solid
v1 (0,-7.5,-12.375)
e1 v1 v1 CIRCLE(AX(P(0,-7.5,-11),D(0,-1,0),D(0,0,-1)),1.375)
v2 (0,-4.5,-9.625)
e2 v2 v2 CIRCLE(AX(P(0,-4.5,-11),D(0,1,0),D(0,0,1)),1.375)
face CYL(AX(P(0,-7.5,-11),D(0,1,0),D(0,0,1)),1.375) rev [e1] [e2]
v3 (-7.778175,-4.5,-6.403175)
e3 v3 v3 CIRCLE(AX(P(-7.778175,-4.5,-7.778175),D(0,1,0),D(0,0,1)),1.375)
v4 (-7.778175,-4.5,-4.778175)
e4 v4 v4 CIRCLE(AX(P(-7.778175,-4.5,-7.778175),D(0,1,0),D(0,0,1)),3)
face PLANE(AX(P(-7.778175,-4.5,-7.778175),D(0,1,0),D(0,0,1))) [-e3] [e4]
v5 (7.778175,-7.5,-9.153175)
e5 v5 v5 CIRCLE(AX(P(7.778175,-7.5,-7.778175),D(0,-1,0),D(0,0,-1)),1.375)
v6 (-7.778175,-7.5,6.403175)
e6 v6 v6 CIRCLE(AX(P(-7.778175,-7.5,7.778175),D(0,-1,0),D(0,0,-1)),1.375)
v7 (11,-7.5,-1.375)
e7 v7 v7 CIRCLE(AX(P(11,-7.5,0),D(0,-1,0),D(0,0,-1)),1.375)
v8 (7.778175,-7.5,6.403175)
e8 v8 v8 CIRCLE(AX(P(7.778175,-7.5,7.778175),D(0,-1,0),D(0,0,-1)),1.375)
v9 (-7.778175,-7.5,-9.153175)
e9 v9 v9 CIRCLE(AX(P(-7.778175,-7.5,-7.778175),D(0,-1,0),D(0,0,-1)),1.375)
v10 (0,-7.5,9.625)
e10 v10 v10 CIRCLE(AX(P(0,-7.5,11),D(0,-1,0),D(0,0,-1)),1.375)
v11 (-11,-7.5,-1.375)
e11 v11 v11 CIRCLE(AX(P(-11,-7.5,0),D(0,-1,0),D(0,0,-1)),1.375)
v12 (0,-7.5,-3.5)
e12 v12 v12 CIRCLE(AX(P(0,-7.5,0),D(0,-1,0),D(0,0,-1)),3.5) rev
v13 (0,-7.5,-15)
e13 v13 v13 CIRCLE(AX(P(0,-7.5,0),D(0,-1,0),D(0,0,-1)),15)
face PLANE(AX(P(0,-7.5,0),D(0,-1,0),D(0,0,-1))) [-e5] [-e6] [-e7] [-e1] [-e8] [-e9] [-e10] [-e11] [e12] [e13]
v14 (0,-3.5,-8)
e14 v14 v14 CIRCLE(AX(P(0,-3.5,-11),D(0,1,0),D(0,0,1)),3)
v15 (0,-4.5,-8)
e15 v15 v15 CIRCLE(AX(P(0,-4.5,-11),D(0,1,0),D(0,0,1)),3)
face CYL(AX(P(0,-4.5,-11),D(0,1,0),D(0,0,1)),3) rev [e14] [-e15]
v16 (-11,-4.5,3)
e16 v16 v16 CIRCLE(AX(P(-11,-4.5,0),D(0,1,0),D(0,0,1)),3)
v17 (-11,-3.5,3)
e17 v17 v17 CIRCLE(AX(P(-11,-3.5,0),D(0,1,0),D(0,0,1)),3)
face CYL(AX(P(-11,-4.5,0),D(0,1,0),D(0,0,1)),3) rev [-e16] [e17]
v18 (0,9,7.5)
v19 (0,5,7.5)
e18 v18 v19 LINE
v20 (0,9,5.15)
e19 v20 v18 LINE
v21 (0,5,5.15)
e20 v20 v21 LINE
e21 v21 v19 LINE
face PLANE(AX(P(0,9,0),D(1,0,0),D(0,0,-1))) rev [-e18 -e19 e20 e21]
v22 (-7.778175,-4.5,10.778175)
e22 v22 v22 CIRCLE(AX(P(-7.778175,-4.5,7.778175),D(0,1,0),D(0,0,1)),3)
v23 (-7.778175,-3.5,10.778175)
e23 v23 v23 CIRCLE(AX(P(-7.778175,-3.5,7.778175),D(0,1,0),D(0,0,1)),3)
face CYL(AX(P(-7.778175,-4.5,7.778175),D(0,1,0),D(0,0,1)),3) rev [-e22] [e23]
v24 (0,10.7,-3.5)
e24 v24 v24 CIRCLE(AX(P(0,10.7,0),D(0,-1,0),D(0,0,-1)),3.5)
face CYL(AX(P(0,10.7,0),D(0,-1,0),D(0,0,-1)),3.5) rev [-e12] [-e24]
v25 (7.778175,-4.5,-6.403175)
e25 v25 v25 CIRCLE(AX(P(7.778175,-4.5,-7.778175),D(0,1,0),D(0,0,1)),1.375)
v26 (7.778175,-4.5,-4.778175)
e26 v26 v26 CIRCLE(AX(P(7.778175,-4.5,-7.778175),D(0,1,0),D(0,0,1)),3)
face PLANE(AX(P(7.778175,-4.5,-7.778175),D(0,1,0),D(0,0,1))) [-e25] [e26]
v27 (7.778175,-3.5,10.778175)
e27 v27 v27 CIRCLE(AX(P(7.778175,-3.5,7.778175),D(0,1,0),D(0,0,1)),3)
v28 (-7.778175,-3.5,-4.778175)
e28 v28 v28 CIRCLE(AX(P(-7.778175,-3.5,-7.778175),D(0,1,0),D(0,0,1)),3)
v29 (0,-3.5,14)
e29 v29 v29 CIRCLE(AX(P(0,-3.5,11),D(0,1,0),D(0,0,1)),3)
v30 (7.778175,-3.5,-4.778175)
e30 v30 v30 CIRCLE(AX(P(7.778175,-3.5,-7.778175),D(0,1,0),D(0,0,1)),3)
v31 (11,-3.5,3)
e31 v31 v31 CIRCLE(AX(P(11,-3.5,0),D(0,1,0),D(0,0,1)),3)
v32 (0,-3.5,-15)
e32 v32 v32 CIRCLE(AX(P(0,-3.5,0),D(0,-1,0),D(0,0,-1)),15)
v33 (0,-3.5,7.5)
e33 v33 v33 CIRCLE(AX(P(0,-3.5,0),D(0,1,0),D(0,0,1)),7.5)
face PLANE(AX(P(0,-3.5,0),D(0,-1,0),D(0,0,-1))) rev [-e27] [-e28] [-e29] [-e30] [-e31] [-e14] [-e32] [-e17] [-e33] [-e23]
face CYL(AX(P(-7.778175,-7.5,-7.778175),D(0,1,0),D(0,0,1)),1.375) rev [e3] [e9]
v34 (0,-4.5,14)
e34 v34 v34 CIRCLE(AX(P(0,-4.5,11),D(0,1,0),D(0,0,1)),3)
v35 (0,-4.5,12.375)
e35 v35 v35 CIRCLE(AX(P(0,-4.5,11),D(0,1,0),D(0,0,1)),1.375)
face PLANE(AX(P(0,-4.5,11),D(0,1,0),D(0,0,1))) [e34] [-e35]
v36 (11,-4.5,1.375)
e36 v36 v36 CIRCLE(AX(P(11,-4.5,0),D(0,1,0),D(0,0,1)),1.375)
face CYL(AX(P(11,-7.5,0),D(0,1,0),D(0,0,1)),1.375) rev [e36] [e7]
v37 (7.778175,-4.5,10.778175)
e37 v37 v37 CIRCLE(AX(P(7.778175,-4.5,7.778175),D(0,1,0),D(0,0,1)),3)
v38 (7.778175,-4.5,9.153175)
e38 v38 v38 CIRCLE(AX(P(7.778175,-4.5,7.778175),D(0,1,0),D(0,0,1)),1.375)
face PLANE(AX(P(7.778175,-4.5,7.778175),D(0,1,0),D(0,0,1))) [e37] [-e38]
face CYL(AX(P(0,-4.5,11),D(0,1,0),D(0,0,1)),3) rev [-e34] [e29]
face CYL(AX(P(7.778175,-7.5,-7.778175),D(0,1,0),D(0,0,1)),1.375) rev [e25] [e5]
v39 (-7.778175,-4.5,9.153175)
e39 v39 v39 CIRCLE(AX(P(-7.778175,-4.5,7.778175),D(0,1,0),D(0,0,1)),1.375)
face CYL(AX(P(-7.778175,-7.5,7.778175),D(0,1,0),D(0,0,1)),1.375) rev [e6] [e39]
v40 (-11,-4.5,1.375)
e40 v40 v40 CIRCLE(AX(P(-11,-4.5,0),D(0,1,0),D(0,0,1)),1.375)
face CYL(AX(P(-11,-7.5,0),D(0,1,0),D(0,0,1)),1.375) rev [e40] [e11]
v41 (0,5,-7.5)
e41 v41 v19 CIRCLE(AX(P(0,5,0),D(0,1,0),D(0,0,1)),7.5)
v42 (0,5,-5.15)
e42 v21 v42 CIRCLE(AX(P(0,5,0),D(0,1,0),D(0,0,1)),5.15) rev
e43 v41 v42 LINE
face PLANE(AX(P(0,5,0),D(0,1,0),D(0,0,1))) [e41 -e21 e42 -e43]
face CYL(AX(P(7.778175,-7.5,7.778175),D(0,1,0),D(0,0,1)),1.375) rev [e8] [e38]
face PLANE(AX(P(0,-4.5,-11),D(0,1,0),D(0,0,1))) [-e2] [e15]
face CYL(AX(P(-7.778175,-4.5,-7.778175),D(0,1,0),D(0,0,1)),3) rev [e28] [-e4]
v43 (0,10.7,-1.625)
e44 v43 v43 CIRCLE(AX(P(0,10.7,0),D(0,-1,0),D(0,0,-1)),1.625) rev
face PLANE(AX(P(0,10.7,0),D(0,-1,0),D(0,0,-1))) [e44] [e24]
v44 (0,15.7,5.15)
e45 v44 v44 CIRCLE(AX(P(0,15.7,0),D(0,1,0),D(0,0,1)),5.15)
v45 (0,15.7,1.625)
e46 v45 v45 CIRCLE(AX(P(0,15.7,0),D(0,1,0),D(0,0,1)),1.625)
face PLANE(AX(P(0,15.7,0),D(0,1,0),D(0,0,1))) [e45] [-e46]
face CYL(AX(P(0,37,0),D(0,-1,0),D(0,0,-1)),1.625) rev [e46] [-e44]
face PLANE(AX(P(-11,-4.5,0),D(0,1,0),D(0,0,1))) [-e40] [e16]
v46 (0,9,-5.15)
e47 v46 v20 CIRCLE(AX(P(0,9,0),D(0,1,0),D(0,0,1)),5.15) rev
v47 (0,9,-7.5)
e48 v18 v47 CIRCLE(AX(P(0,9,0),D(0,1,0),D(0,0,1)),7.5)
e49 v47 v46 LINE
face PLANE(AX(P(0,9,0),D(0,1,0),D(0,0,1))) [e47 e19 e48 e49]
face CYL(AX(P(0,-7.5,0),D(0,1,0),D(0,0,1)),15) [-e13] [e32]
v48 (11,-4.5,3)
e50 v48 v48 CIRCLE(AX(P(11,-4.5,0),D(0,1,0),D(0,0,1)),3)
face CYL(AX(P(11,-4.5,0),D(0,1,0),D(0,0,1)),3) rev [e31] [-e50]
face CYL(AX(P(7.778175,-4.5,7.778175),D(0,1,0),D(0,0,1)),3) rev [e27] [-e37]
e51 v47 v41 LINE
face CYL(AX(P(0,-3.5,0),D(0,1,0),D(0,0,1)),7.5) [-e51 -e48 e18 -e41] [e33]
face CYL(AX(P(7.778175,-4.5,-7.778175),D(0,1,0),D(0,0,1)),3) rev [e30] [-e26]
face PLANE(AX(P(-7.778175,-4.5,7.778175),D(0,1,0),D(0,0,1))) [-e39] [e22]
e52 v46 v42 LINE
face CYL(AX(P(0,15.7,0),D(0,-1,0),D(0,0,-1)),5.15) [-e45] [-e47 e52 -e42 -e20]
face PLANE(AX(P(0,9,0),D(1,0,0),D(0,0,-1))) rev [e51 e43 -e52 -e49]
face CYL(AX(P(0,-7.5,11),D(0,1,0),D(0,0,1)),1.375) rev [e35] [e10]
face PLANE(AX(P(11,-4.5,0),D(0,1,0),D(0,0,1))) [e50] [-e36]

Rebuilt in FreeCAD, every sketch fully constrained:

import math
import FreeCAD as App
import Part
import Sketcher
Q = App.Units.Quantity

doc = App.newDocument("Part")
body = doc.addObject("PartDesign::Body", "Body")

# Sketch on XZ plane
sketch1 = body.newObject("Sketcher::SketchObject", "Sketch")
sketch1.AttachmentSupport = (doc.getObject("XZ_Plane"), [""])
sketch1.MapMode = "FlatFace"
sketch1.addGeometry(Part.Circle(App.Vector(0, 0, 0), App.Vector(0, 0, 1), 8), False)
sketch1.addConstraint([
    Sketcher.Constraint("Coincident", 0, 3, -1, 1),
    Sketcher.Constraint("Diameter", 0, Q("15 mm")),
])
pad1 = body.newObject("PartDesign::Pad", "Pad")
pad1.Profile = sketch1
pad1.Length = 5
pad1.Reversed = True

# Sketch on XZ plane
sketch2 = body.newObject("Sketcher::SketchObject", "Sketch001")
sketch2.AttachmentSupport = (doc.getObject("XZ_Plane"), [""])
sketch2.MapMode = "FlatFace"
sketch2.addGeometry(Part.Circle(App.Vector(0, 0, 0), App.Vector(0, 0, 1), 5), False)
sketch2.addConstraint([
    Sketcher.Constraint("Coincident", 0, 3, -1, 1),
    Sketcher.Constraint("Diameter", 0, Q("10.3 mm")),
])
pad2 = body.newObject("PartDesign::Pad", "Pad001")
pad2.Profile = sketch2
pad2.Length = 15.7
pad2.Reversed = True

# Sketch on XZ plane
sketch3 = body.newObject("Sketcher::SketchObject", "Sketch002")
sketch3.AttachmentSupport = (doc.getObject("XZ_Plane"), [""])
sketch3.MapMode = "FlatFace"
sketch3.AttachmentOffset = App.Placement(App.Vector(0, 0, -5), App.Rotation())
sketch3.addGeometry([
    Part.ArcOfCircle(Part.Circle(App.Vector(0, 0, 0), App.Vector(0, 0, 1), 7.5), math.radians(-90), math.radians(0)),  # 0
    Part.LineSegment(App.Vector(0, -7.5, 0), App.Vector(0, -5.2, 0)),  # 1
    Part.ArcOfCircle(Part.Circle(App.Vector(0, 0, 0), App.Vector(0, 0, 1), 5.2), math.radians(-90), math.radians(0)),  # 2
    Part.ArcOfCircle(Part.Circle(App.Vector(0, 0, 0), App.Vector(0, 0, 1), 5.2), math.radians(0), math.radians(90)),  # 3
    Part.LineSegment(App.Vector(0, 5.2, 0), App.Vector(0, 7.5, 0)),  # 4
    Part.ArcOfCircle(Part.Circle(App.Vector(0, 0, 0), App.Vector(0, 0, 1), 7.5), math.radians(0), math.radians(90)),  # 5
], False)
sketch3.addConstraint([
    Sketcher.Constraint("Coincident", 0, 1, 1, 1),
    Sketcher.Constraint("Coincident", 1, 2, 2, 1),
    Sketcher.Constraint("Tangent", 2, 2, 3, 1),
    Sketcher.Constraint("Coincident", 3, 2, 4, 1),
    Sketcher.Constraint("Coincident", 4, 2, 5, 2),
    Sketcher.Constraint("Tangent", 5, 1, 0, 2),
    Sketcher.Constraint("Vertical", 1),
    Sketcher.Constraint("Vertical", 4),
    Sketcher.Constraint("Coincident", 0, 3, -1, 1),
    Sketcher.Constraint("Coincident", 2, 3, -1, 1),
    Sketcher.Constraint("Equal", 2, 3),
    Sketcher.Constraint("Equal", 0, 5),
    Sketcher.Constraint("PointOnObject", 0, 1, -2),
    Sketcher.Constraint("PointOnObject", 2, 2, -1),
    Sketcher.Constraint("PointOnObject", 3, 2, -2),
    Sketcher.Constraint("PointOnObject", 5, 1, -1),
    Sketcher.Constraint("Radius", 0, Q("7.5 mm")),
    Sketcher.Constraint("Radius", 2, Q("5.15 mm")),
])
pad3 = body.newObject("PartDesign::Pad", "Pad002")
pad3.Profile = sketch3
pad3.Length = 4
pad3.Reversed = True

# Sketch on XZ plane
sketch4 = body.newObject("Sketcher::SketchObject", "Sketch003")
sketch4.AttachmentSupport = (doc.getObject("XZ_Plane"), [""])
sketch4.MapMode = "FlatFace"
sketch4.addGeometry(Part.Circle(App.Vector(0, 0, 0), App.Vector(0, 0, 1), 1.6), False)
sketch4.addConstraint([
    Sketcher.Constraint("Coincident", 0, 3, -1, 1),
    Sketcher.Constraint("Diameter", 0, Q("3.25 mm")),
])
pocket1 = body.newObject("PartDesign::Pocket", "Pocket")
pocket1.Profile = sketch4
pocket1.Length = 37

# Sketch on XZ plane
sketch5 = body.newObject("Sketcher::SketchObject", "Sketch004")
sketch5.AttachmentSupport = (doc.getObject("XZ_Plane"), [""])
sketch5.MapMode = "FlatFace"
sketch5.addGeometry(Part.Circle(App.Vector(0, 0, 0), App.Vector(0, 0, 1), 3.5), False)
sketch5.addConstraint([
    Sketcher.Constraint("Coincident", 0, 3, -1, 1),
    Sketcher.Constraint("Diameter", 0, Q("7 mm")),
])
pocket2 = body.newObject("PartDesign::Pocket", "Pocket001")
pocket2.Profile = sketch5
pocket2.Length = 10.7

# Sketch on XZ plane
sketch6 = body.newObject("Sketcher::SketchObject", "Sketch005")
sketch6.AttachmentSupport = (doc.getObject("XZ_Plane"), [""])
sketch6.MapMode = "FlatFace"
sketch6.AttachmentOffset = App.Placement(App.Vector(0, 0, 3.5), App.Rotation())
sketch6.addGeometry([
    Part.Circle(App.Vector(0, 0, 0), App.Vector(0, 0, 1), 7.5),
    Part.Circle(App.Vector(0, 0, 0), App.Vector(0, 0, 1), 3.5),
], False)
sketch6.addConstraint([
    Sketcher.Constraint("Coincident", 0, 3, -1, 1),
    Sketcher.Constraint("Coincident", 1, 3, -1, 1),
    Sketcher.Constraint("Diameter", 0, Q("15 mm")),
    Sketcher.Constraint("Diameter", 1, Q("7 mm")),
])
pad4 = body.newObject("PartDesign::Pad", "Pad003")
pad4.Profile = sketch6
pad4.Length = 3.5
pad4.Reversed = True

# Sketch on XZ plane
sketch7 = body.newObject("Sketcher::SketchObject", "Sketch006")
sketch7.AttachmentSupport = (doc.getObject("XZ_Plane"), [""])
sketch7.MapMode = "FlatFace"
sketch7.AttachmentOffset = App.Placement(App.Vector(0, 0, 7.5), App.Rotation())
sketch7.addGeometry([
    Part.Circle(App.Vector(0, 0, 0), App.Vector(0, 0, 1), 15),  # 0
    Part.Circle(App.Vector(-7.8, 7.8, 0), App.Vector(0, 0, 1), 1.4),  # 1
    Part.Circle(App.Vector(0, 11, 0), App.Vector(0, 0, 1), 1.4),  # 2
    Part.Circle(App.Vector(-11, 0, 0), App.Vector(0, 0, 1), 1.4),  # 3
    Part.Circle(App.Vector(-7.8, -7.8, 0), App.Vector(0, 0, 1), 1.4),  # 4
    Part.Circle(App.Vector(7.8, 7.8, 0), App.Vector(0, 0, 1), 1.4),  # 5
    Part.Circle(App.Vector(11, 0, 0), App.Vector(0, 0, 1), 1.4),  # 6
    Part.Circle(App.Vector(0, 0, 0), App.Vector(0, 0, 1), 3.5),  # 7
    Part.Circle(App.Vector(0, -11, 0), App.Vector(0, 0, 1), 1.4),  # 8
    Part.Circle(App.Vector(7.8, -7.8, 0), App.Vector(0, 0, 1), 1.4),  # 9
], False)
sketch7.addConstraint([
    Sketcher.Constraint("Coincident", 0, 3, -1, 1),
    Sketcher.Constraint("Coincident", 7, 3, -1, 1),
    Sketcher.Constraint("Equal", 1, 2),
    Sketcher.Constraint("Equal", 2, 3),
    Sketcher.Constraint("Equal", 3, 4),
    Sketcher.Constraint("Equal", 4, 5),
    Sketcher.Constraint("Equal", 5, 6),
    Sketcher.Constraint("Equal", 6, 8),
    Sketcher.Constraint("Equal", 8, 9),
    Sketcher.Constraint("Symmetric", 4, 3, 5, 3, -1, 1),
    Sketcher.Constraint("Symmetric", 3, 3, 6, 3, -1, 1),
    Sketcher.Constraint("Symmetric", 2, 3, 8, 3, -1, 1),
    Sketcher.Constraint("Symmetric", 1, 3, 9, 3, -1, 1),
    Sketcher.Constraint("Symmetric", 1, 3, 5, 3, -2),
    Sketcher.Constraint("PointOnObject", 2, 3, -2),
    Sketcher.Constraint("PointOnObject", 3, 3, -1),
    Sketcher.Constraint("Diameter", 0, Q("30 mm")),
    Sketcher.Constraint("Diameter", 7, Q("7 mm")),
    Sketcher.Constraint("Diameter", 1, Q("2.75 mm")),
    Sketcher.Constraint("DistanceY", -1, 1, 2, 3, Q("11 mm")),
    Sketcher.Constraint("DistanceX", 3, 3, -1, 1, Q("11 mm")),
    Sketcher.Constraint("DistanceY", 4, 3, 1, 3, Q("15.556349 mm")),
    Sketcher.Constraint("DistanceX", 1, 3, 5, 3, Q("15.556349 mm")),
])
pad5 = body.newObject("PartDesign::Pad", "Pad004")
pad5.Profile = sketch7
pad5.Length = 4
pad5.Reversed = True

# Sketch on XZ plane
sketch8 = body.newObject("Sketcher::SketchObject", "Sketch007")
sketch8.AttachmentSupport = (doc.getObject("XZ_Plane"), [""])
sketch8.MapMode = "FlatFace"
sketch8.AttachmentOffset = App.Placement(App.Vector(0, 0, 3.5), App.Rotation())
sketch8.addGeometry([
    Part.Circle(App.Vector(-11, 0, 0), App.Vector(0, 0, 1), 3),  # 0
    Part.Circle(App.Vector(-7.8, -7.8, 0), App.Vector(0, 0, 1), 3),  # 1
    Part.Circle(App.Vector(0, -11, 0), App.Vector(0, 0, 1), 3),  # 2
    Part.Circle(App.Vector(7.8, -7.8, 0), App.Vector(0, 0, 1), 3),  # 3
    Part.Circle(App.Vector(11, 0, 0), App.Vector(0, 0, 1), 3),  # 4
    Part.Circle(App.Vector(7.8, 7.8, 0), App.Vector(0, 0, 1), 3),  # 5
    Part.Circle(App.Vector(0, 11, 0), App.Vector(0, 0, 1), 3),  # 6
    Part.Circle(App.Vector(-7.8, 7.8, 0), App.Vector(0, 0, 1), 3),  # 7
], False)
sketch8.addConstraint([
    Sketcher.Constraint("Equal", 0, 1),
    Sketcher.Constraint("Equal", 1, 2),
    Sketcher.Constraint("Equal", 2, 3),
    Sketcher.Constraint("Equal", 3, 4),
    Sketcher.Constraint("Equal", 4, 5),
    Sketcher.Constraint("Equal", 5, 6),
    Sketcher.Constraint("Equal", 6, 7),
    Sketcher.Constraint("Symmetric", 0, 3, 4, 3, -1, 1),
    Sketcher.Constraint("Symmetric", 1, 3, 5, 3, -1, 1),
    Sketcher.Constraint("Symmetric", 2, 3, 6, 3, -1, 1),
    Sketcher.Constraint("Symmetric", 3, 3, 7, 3, -1, 1),
    Sketcher.Constraint("Symmetric", 1, 3, 3, 3, -2),
    Sketcher.Constraint("PointOnObject", 0, 3, -1),
    Sketcher.Constraint("PointOnObject", 2, 3, -2),
    Sketcher.Constraint("Diameter", 0, Q("6 mm")),
    Sketcher.Constraint("DistanceX", 0, 3, -1, 1, Q("11 mm")),
    Sketcher.Constraint("DistanceY", 2, 3, -1, 1, Q("11 mm")),
    Sketcher.Constraint("DistanceX", 1, 3, 3, 3, Q("15.556349 mm")),
    Sketcher.Constraint("DistanceY", 3, 3, 5, 3, Q("15.556349 mm")),
])
pocket3 = body.newObject("PartDesign::Pocket", "Pocket002")
pocket3.Profile = sketch8
pocket3.Length = 1
pocket3.Reversed = True

# Sketch on XZ plane
sketch9 = body.newObject("Sketcher::SketchObject", "Sketch008")
sketch9.AttachmentSupport = (doc.getObject("XZ_Plane"), [""])
sketch9.MapMode = "FlatFace"
sketch9.AttachmentOffset = App.Placement(App.Vector(0, 0, 3.5), App.Rotation())
sketch9.addGeometry([
    Part.Circle(App.Vector(0, 0, 0), App.Vector(0, 0, 1), 8),
    Part.Circle(App.Vector(0, 0, 0), App.Vector(0, 0, 1), 7),
], False)
sketch9.addConstraint([
    Sketcher.Constraint("Coincident", 0, 3, -1, 1),
    Sketcher.Constraint("Coincident", 1, 3, -1, 1),
    Sketcher.Constraint("Diameter", 0, Q("15 mm")),
    Sketcher.Constraint("Diameter", 1, Q("14.9 mm")),
])
pocket4 = body.newObject("PartDesign::Pocket", "Pocket003")
pocket4.Profile = sketch9
pocket4.Length = 12.5

# Sketch on XZ plane
sketch10 = body.newObject("Sketcher::SketchObject", "Sketch009")
sketch10.AttachmentSupport = (doc.getObject("XZ_Plane"), [""])
sketch10.MapMode = "FlatFace"
sketch10.AttachmentOffset = App.Placement(App.Vector(0, 0, 3.5), App.Rotation())
sketch10.addGeometry([
    Part.Circle(App.Vector(0, 0, 0), App.Vector(0, 0, 1), 8),
    Part.Circle(App.Vector(0, 0, 0), App.Vector(0, 0, 1), 7),
], False)
sketch10.addConstraint([
    Sketcher.Constraint("Coincident", 0, 3, -1, 1),
    Sketcher.Constraint("Coincident", 1, 3, -1, 1),
    Sketcher.Constraint("Diameter", 0, Q("15 mm")),
    Sketcher.Constraint("Diameter", 1, Q("14.9 mm")),
])
pad6 = body.newObject("PartDesign::Pad", "Pad005")
pad6.Profile = sketch10
pad6.Length = 8.5
pad6.Reversed = True

# Sketch on XZ plane
sketch11 = body.newObject("Sketcher::SketchObject", "Sketch010")
sketch11.AttachmentSupport = (doc.getObject("XZ_Plane"), [""])
sketch11.MapMode = "FlatFace"
sketch11.AttachmentOffset = App.Placement(App.Vector(0, 0, -5), App.Rotation())
sketch11.addGeometry([
    Part.ArcOfCircle(Part.Circle(App.Vector(0, 0, 0), App.Vector(0, 0, 1), 7.5), math.radians(-90), math.radians(0)),  # 0
    Part.LineSegment(App.Vector(0, -7.5, 0), App.Vector(0, -7.45, 0)),  # 1
    Part.ArcOfCircle(Part.Circle(App.Vector(0, 0, 0), App.Vector(0, 0, 1), 7.45), math.radians(-90), math.radians(0)),  # 2
    Part.ArcOfCircle(Part.Circle(App.Vector(0, 0, 0), App.Vector(0, 0, 1), 7.45), math.radians(0), math.radians(90)),  # 3
    Part.LineSegment(App.Vector(0, 7.45, 0), App.Vector(0, 7.5, 0)),  # 4
    Part.ArcOfCircle(Part.Circle(App.Vector(0, 0, 0), App.Vector(0, 0, 1), 7.5), math.radians(0), math.radians(90)),  # 5
], False)
sketch11.addConstraint([
    Sketcher.Constraint("Coincident", 0, 1, 1, 1),
    Sketcher.Constraint("Coincident", 1, 2, 2, 1),
    Sketcher.Constraint("Tangent", 2, 2, 3, 1),
    Sketcher.Constraint("Coincident", 3, 2, 4, 1),
    Sketcher.Constraint("Coincident", 4, 2, 5, 2),
    Sketcher.Constraint("Tangent", 5, 1, 0, 2),
    Sketcher.Constraint("Vertical", 1),
    Sketcher.Constraint("Vertical", 4),
    Sketcher.Constraint("Coincident", 0, 3, -1, 1),
    Sketcher.Constraint("Coincident", 2, 3, -1, 1),
    Sketcher.Constraint("Equal", 2, 3),
    Sketcher.Constraint("Equal", 0, 5),
    Sketcher.Constraint("PointOnObject", 0, 1, -2),
    Sketcher.Constraint("PointOnObject", 2, 2, -1),
    Sketcher.Constraint("PointOnObject", 3, 2, -2),
    Sketcher.Constraint("PointOnObject", 5, 1, -1),
    Sketcher.Constraint("Radius", 0, Q("7.5 mm")),
    Sketcher.Constraint("Radius", 2, Q("7.45 mm")),
])
pad7 = body.newObject("PartDesign::Pad", "Pad006")
pad7.Profile = sketch11
pad7.Length = 4
pad7.Reversed = True

doc.recompute()
